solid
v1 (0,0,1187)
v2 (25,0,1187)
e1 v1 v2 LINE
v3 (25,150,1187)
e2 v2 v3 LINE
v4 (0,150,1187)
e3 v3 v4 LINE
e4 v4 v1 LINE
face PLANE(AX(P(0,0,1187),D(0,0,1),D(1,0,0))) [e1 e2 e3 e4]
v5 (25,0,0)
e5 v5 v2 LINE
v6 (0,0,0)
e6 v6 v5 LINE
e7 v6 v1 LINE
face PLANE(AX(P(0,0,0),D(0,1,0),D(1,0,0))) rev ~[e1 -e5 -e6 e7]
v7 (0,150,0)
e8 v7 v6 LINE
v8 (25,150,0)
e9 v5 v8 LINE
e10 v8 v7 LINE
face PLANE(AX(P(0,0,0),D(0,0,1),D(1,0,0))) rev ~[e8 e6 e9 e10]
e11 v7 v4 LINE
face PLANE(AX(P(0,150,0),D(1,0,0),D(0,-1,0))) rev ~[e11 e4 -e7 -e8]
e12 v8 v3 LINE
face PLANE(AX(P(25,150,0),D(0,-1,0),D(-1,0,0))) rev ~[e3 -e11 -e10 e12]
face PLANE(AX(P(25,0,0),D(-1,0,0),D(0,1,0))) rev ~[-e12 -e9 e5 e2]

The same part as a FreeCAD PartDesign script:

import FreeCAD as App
import Part
import Sketcher
Q = App.Units.Quantity

doc = App.newDocument("Part")
body = doc.addObject("PartDesign::Body", "Body")

# Sketch on XY plane
sketch1 = doc.addObject("Sketcher::SketchObject", "Sketch")
body.addObject(sketch1)
sketch1.AttachmentSupport = (doc.XY_Plane, [""])
sketch1.MapMode = "FlatFace"
sketch1.addGeometry(Part.LineSegment(App.Vector(0, 150, 0), App.Vector(0, 0, 0)), False)
sketch1.addGeometry(Part.LineSegment(App.Vector(0, 0, 0), App.Vector(25, 0, 0)), False)
sketch1.addGeometry(Part.LineSegment(App.Vector(25, 0, 0), App.Vector(25, 150, 0)), False)
sketch1.addGeometry(Part.LineSegment(App.Vector(25, 150, 0), App.Vector(0, 150, 0)), False)
sketch1.addConstraint(Sketcher.Constraint("Coincident", 0, 2, 1, 1))
sketch1.addConstraint(Sketcher.Constraint("Coincident", 1, 2, 2, 1))
sketch1.addConstraint(Sketcher.Constraint("Coincident", 2, 2, 3, 1))
sketch1.addConstraint(Sketcher.Constraint("Coincident", 3, 2, 0, 1))
sketch1.addConstraint(Sketcher.Constraint("Vertical", 0))
sketch1.addConstraint(Sketcher.Constraint("Horizontal", 1))
sketch1.addConstraint(Sketcher.Constraint("Vertical", 2))
sketch1.addConstraint(Sketcher.Constraint("Horizontal", 3))
sketch1.addConstraint(Sketcher.Constraint("Coincident", 0, 2, -1, 1))
sketch1.addConstraint(Sketcher.Constraint("DistanceX", 1, 1, 1, 2, Q("25 mm")))
sketch1.addConstraint(Sketcher.Constraint("DistanceY", 0, 2, 0, 1, Q("150 mm")))
pad1 = doc.addObject("PartDesign::Pad", "Pad")
body.addObject(pad1)
pad1.Profile = sketch1
pad1.Length = 1187

doc.recompute()
